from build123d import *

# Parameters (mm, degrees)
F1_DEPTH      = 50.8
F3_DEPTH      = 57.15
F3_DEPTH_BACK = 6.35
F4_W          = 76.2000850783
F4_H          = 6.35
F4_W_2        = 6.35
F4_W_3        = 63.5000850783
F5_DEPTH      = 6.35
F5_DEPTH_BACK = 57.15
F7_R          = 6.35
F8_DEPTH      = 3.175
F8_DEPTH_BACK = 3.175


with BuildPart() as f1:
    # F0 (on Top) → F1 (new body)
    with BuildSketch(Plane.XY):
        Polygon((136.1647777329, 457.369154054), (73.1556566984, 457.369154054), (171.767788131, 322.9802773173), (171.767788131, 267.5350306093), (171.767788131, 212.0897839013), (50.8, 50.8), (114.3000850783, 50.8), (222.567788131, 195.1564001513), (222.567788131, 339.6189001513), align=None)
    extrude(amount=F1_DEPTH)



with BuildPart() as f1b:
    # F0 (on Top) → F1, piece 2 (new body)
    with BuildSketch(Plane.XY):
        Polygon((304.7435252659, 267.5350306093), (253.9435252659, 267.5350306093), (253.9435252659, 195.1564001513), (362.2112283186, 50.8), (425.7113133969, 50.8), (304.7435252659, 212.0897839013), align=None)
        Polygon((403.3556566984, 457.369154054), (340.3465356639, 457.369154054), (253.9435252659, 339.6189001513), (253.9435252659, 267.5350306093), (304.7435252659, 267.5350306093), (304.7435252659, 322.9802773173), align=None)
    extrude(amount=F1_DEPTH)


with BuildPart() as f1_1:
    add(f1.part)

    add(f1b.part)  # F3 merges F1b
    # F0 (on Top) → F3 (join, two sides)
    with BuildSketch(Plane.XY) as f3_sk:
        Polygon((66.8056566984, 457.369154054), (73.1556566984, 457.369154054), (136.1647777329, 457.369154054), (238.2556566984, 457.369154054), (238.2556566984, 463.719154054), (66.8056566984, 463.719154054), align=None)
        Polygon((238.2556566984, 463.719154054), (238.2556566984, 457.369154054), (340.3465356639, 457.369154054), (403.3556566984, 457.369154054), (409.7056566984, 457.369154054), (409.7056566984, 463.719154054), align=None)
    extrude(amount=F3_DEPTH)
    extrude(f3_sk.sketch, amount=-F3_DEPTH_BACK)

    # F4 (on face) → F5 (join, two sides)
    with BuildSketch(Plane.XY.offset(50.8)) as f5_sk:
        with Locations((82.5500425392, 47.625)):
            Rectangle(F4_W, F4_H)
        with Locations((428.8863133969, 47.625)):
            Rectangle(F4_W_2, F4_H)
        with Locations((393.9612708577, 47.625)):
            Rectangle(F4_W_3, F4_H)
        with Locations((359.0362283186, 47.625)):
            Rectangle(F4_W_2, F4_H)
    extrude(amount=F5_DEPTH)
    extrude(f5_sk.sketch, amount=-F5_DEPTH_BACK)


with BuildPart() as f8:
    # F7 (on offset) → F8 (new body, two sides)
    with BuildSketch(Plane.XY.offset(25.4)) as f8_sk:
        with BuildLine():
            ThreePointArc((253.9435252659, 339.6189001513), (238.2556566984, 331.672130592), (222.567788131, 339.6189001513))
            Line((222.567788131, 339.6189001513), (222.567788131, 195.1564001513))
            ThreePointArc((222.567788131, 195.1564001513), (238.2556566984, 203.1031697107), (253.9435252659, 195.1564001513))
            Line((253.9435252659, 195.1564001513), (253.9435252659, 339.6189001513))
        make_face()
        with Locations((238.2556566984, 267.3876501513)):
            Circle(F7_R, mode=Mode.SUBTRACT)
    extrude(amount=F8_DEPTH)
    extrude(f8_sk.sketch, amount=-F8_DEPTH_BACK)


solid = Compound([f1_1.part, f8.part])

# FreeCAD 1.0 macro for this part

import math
import FreeCAD as App
import Part
import Sketcher

V = App.Vector
Q = App.Units.Quantity

doc = App.newDocument("Part")
body = doc.addObject("PartDesign::Body", "Body")

# Sketch on XY plane
sketch1 = doc.addObject("Sketcher::SketchObject", "Sketch")
body.addObject(sketch1)
sketch1.AttachmentSupport = (doc.XY_Plane, [""])
sketch1.MapMode = "FlatFace"
sketch1.addGeometry(Part.LineSegment(V(136, 457, 0), V(73, 457, 0)), False)
sketch1.addGeometry(Part.LineSegment(V(73, 457, 0), V(172, 323, 0)), False)
sketch1.addGeometry(Part.LineSegment(V(172, 323, 0), V(172, 212, 0)), False)
sketch1.addGeometry(Part.LineSegment(V(172, 212, 0), V(51, 51, 0)), False)
sketch1.addGeometry(Part.LineSegment(V(51, 51, 0), V(114, 51, 0)), False)
sketch1.addGeometry(Part.LineSegment(V(114, 51, 0), V(223, 195, 0)), False)
sketch1.addGeometry(Part.LineSegment(V(223, 195, 0), V(223, 340, 0)), False)
sketch1.addGeometry(Part.LineSegment(V(223, 340, 0), V(136, 457, 0)), False)
sketch1.addConstraint(Sketcher.Constraint("Coincident", 0, 2, 1, 1))
sketch1.addConstraint(Sketcher.Constraint("Coincident", 1, 2, 2, 1))
sketch1.addConstraint(Sketcher.Constraint("Coincident", 2, 2, 3, 1))
sketch1.addConstraint(Sketcher.Constraint("Coincident", 3, 2, 4, 1))
sketch1.addConstraint(Sketcher.Constraint("Coincident", 4, 2, 5, 1))
sketch1.addConstraint(Sketcher.Constraint("Coincident", 5, 2, 6, 1))
sketch1.addConstraint(Sketcher.Constraint("Coincident", 6, 2, 7, 1))
sketch1.addConstraint(Sketcher.Constraint("Coincident", 7, 2, 0, 1))
sketch1.addConstraint(Sketcher.Constraint("Horizontal", 0))
sketch1.addConstraint(Sketcher.Constraint("Vertical", 2))
sketch1.addConstraint(Sketcher.Constraint("Horizontal", 4))
sketch1.addConstraint(Sketcher.Constraint("Vertical", 6))
sketch1.addConstraint(Sketcher.Constraint("Parallel", 3, 5))
sketch1.addConstraint(Sketcher.Constraint("Parallel", 1, 7))
sketch1.addConstraint(Sketcher.Constraint("DistanceX", -1, 1, 3, 2, Q("2 in")))
sketch1.addConstraint(Sketcher.Constraint("DistanceY", -1, 1, 3, 2, Q("2 in")))
sketch1.addConstraint(Sketcher.Constraint("DistanceX", 2, 2, 5, 2, Q("2 in")))
sketch1.addConstraint(Sketcher.Constraint("Distance", 7, Q("5.75 in")))
sketch1.addConstraint(Sketcher.Constraint("DistanceY", 6, 1, 6, 2, Q("5.6875 in")))
sketch1.addConstraint(Sketcher.Constraint("Angle", 3, Q("-126.87 deg")))
sketch1.addConstraint(Sketcher.Constraint("Distance", 1, Q("6.5625 in")))
sketch1.addConstraint(Sketcher.Constraint("Distance", 3, Q("7.9375 in")))
sketch1.addConstraint(Sketcher.Constraint("DistanceX", 0, 2, 0, 1, Q("63.009121 mm")))
sketch1.addConstraint(Sketcher.Constraint("DistanceY", -1, 1, 5, 2, Q("195.1564 mm")))
pad1 = doc.addObject("PartDesign::Pad", "Pad")
body.addObject(pad1)
pad1.Profile = sketch1
pad1.Length = Q("2 in")
body2 = doc.addObject("PartDesign::Body", "Body001")

# Sketch on XY plane
sketch2 = doc.addObject("Sketcher::SketchObject", "Sketch001")
body2.addObject(sketch2)
sketch2.AttachmentSupport = (doc.getObject("XY_Plane001"), [""])
sketch2.MapMode = "FlatFace"
sketch2.addGeometry(Part.LineSegment(V(254, 195, 0), V(362, 51, 0)), False)
sketch2.addGeometry(Part.LineSegment(V(362, 51, 0), V(426, 51, 0)), False)
sketch2.addGeometry(Part.LineSegment(V(426, 51, 0), V(305, 212, 0)), False)
sketch2.addGeometry(Part.LineSegment(V(305, 212, 0), V(305, 323, 0)), False)
sketch2.addGeometry(Part.LineSegment(V(305, 323, 0), V(403, 457, 0)), False)
sketch2.addGeometry(Part.LineSegment(V(403, 457, 0), V(340, 457, 0)), False)
sketch2.addGeometry(Part.LineSegment(V(340, 457, 0), V(254, 340, 0)), False)
sketch2.addGeometry(Part.LineSegment(V(254, 340, 0), V(254, 195, 0)), False)
sketch2.addConstraint(Sketcher.Constraint("Coincident", 0, 2, 1, 1))
sketch2.addConstraint(Sketcher.Constraint("Coincident", 1, 2, 2, 1))
sketch2.addConstraint(Sketcher.Constraint("Coincident", 2, 2, 3, 1))
sketch2.addConstraint(Sketcher.Constraint("Coincident", 3, 2, 4, 1))
sketch2.addConstraint(Sketcher.Constraint("Coincident", 4, 2, 5, 1))
sketch2.addConstraint(Sketcher.Constraint("Coincident", 5, 2, 6, 1))
sketch2.addConstraint(Sketcher.Constraint("Coincident", 6, 2, 7, 1))
sketch2.addConstraint(Sketcher.Constraint("Coincident", 7, 2, 0, 1))
sketch2.addConstraint(Sketcher.Constraint("Horizontal", 1))
sketch2.addConstraint(Sketcher.Constraint("Vertical", 3))
sketch2.addConstraint(Sketcher.Constraint("Horizontal", 5))
sketch2.addConstraint(Sketcher.Constraint("Vertical", 7))
sketch2.addConstraint(Sketcher.Constraint("Parallel", 0, 2))
sketch2.addConstraint(Sketcher.Constraint("Parallel", 4, 6))
sketch2.addConstraint(Sketcher.Constraint("DistanceY", -1, 1, 0, 2, Q("2 in")))
sketch2.addConstraint(Sketcher.Constraint("DistanceX", 6, 2, 3, 2, Q("2 in")))
sketch2.addConstraint(Sketcher.Constraint("Distance", 6, Q("5.75 in")))
sketch2.addConstraint(Sketcher.Constraint("DistanceY", 7, 2, 7, 1, Q("5.6875 in")))
sketch2.addConstraint(Sketcher.Constraint("Angle", 0, Q("-53.13 deg")))
sketch2.addConstraint(Sketcher.Constraint("Distance", 2, Q("7.9375 in")))
sketch2.addConstraint(Sketcher.Constraint("Distance", 4, Q("6.5625 in")))
sketch2.addConstraint(Sketcher.Constraint("DistanceX", 5, 2, 5, 1, Q("63.009121 mm")))
sketch2.addConstraint(Sketcher.Constraint("DistanceY", -1, 1, 6, 2, Q("339.6189 mm")))
sketch2.addConstraint(Sketcher.Constraint("DistanceX", -1, 1, 0, 2, Q("362.211228 mm")))
pad2 = doc.addObject("PartDesign::Pad", "Pad001")
body2.addObject(pad2)
pad2.Profile = sketch2
pad2.Length = Q("2 in")
body.AllowCompound = True
doc.recompute()

boolean = doc.addObject("PartDesign::Boolean", "Boolean")
body.addObject(boolean)
boolean.Type = "Fuse"
boolean.addObjects([body2])

# Sketch on XY plane
sketch3 = doc.addObject("Sketcher::SketchObject", "Sketch002")
body.addObject(sketch3)
sketch3.AttachmentSupport = (doc.XY_Plane, [""])
sketch3.MapMode = "FlatFace"
sketch3.addGeometry(Part.LineSegment(V(67, 457, 0), V(410, 457, 0)), False)
sketch3.addGeometry(Part.LineSegment(V(410, 457, 0), V(410, 464, 0)), False)
sketch3.addGeometry(Part.LineSegment(V(410, 464, 0), V(67, 464, 0)), False)
sketch3.addGeometry(Part.LineSegment(V(67, 464, 0), V(67, 457, 0)), False)
sketch3.addConstraint(Sketcher.Constraint("Coincident", 0, 2, 1, 1))
sketch3.addConstraint(Sketcher.Constraint("Coincident", 1, 2, 2, 1))
sketch3.addConstraint(Sketcher.Constraint("Coincident", 2, 2, 3, 1))
sketch3.addConstraint(Sketcher.Constraint("Coincident", 3, 2, 0, 1))
sketch3.addConstraint(Sketcher.Constraint("Horizontal", 0))
sketch3.addConstraint(Sketcher.Constraint("Vertical", 1))
sketch3.addConstraint(Sketcher.Constraint("Horizontal", 2))
sketch3.addConstraint(Sketcher.Constraint("Vertical", 3))
sketch3.addConstraint(Sketcher.Constraint("DistanceX", 0, 1, 0, 2, Q("13.5 in")))
sketch3.addConstraint(Sketcher.Constraint("DistanceY", 1, 1, 1, 2, Q("0.25 in")))
sketch3.addConstraint(Sketcher.Constraint("DistanceX", -1, 1, 0, 2, Q("409.705657 mm")))
sketch3.addConstraint(Sketcher.Constraint("DistanceY", -1, 1, 0, 2, Q("457.369154 mm")))
pad3 = doc.addObject("PartDesign::Pad", "Pad002")
body.addObject(pad3)
pad3.Profile = sketch3
pad3.Type = "TwoLengths"
pad3.Length = Q("2.25 in")
pad3.Length2 = Q("0.25 in")

# Sketch on XY plane
sketch4 = doc.addObject("Sketcher::SketchObject", "Sketch003")
body.addObject(sketch4)
sketch4.AttachmentSupport = (doc.XY_Plane, [""])
sketch4.MapMode = "FlatFace"
sketch4.AttachmentOffset = App.Placement(V(0, 0, 2 * 25.4), App.Rotation())
sketch4.addGeometry(Part.LineSegment(V(44, 51, 0), V(44, 44, 0)), False)
sketch4.addGeometry(Part.LineSegment(V(44, 44, 0), V(121, 44, 0)), False)
sketch4.addGeometry(Part.LineSegment(V(121, 44, 0), V(121, 51, 0)), False)
sketch4.addGeometry(Part.LineSegment(V(121, 51, 0), V(44, 51, 0)), False)
sketch4.addGeometry(Part.LineSegment(V(432, 44, 0), V(432, 51, 0)), False)
sketch4.addGeometry(Part.LineSegment(V(432, 51, 0), V(356, 51, 0)), False)
sketch4.addGeometry(Part.LineSegment(V(356, 51, 0), V(356, 44, 0)), False)
sketch4.addGeometry(Part.LineSegment(V(356, 44, 0), V(432, 44, 0)), False)
sketch4.addConstraint(Sketcher.Constraint("Coincident", 0, 2, 1, 1))
sketch4.addConstraint(Sketcher.Constraint("Coincident", 1, 2, 2, 1))
sketch4.addConstraint(Sketcher.Constraint("Coincident", 2, 2, 3, 1))
sketch4.addConstraint(Sketcher.Constraint("Coincident", 3, 2, 0, 1))
sketch4.addConstraint(Sketcher.Constraint("Coincident", 4, 2, 5, 1))
sketch4.addConstraint(Sketcher.Constraint("Coincident", 5, 2, 6, 1))
sketch4.addConstraint(Sketcher.Constraint("Coincident", 6, 2, 7, 1))
sketch4.addConstraint(Sketcher.Constraint("Coincident", 7, 2, 4, 1))
sketch4.addConstraint(Sketcher.Constraint("Vertical", 0))
sketch4.addConstraint(Sketcher.Constraint("Horizontal", 1))
sketch4.addConstraint(Sketcher.Constraint("Vertical", 2))
sketch4.addConstraint(Sketcher.Constraint("Horizontal", 3))
sketch4.addConstraint(Sketcher.Constraint("Vertical", 4))
sketch4.addConstraint(Sketcher.Constraint("Horizontal", 5))
sketch4.addConstraint(Sketcher.Constraint("Vertical", 6))
sketch4.addConstraint(Sketcher.Constraint("Horizontal", 7))
sketch4.addConstraint(Sketcher.Constraint("Horizontal", 3, 2, 4, 2))
sketch4.addConstraint(Sketcher.Constraint("Horizontal", 1, 2, 6, 2))
sketch4.addConstraint(Sketcher.Constraint("Equal", 3, 5))
sketch4.addConstraint(Sketcher.Constraint("DistanceY", -1, 1, 2, 2, Q("2 in")))
sketch4.addConstraint(Sketcher.Constraint("DistanceY", 0, 2, 0, 1, Q("0.25 in")))
sketch4.addConstraint(Sketcher.Constraint("DistanceX", -1, 1, 0, 2, Q("1.75 in")))
sketch4.addConstraint(Sketcher.Constraint("DistanceX", 1, 1, 1, 2, Q("76.200085 mm")))
sketch4.addConstraint(Sketcher.Constraint("DistanceX", -1, 1, 5, 2, Q("355.861228 mm")))
pad4 = doc.addObject("PartDesign::Pad", "Pad003")
body.addObject(pad4)
pad4.Profile = sketch4
pad4.Type = "TwoLengths"
pad4.Length = Q("0.25 in")
pad4.Length2 = Q("2.25 in")
body3 = doc.addObject("PartDesign::Body", "Body002")

# Sketch on XY plane
sketch5 = doc.addObject("Sketcher::SketchObject", "Sketch004")
body3.addObject(sketch5)
sketch5.AttachmentSupport = (doc.getObject("XY_Plane002"), [""])
sketch5.MapMode = "FlatFace"
sketch5.AttachmentOffset = App.Placement(V(0, 0, 1 * 25.4), App.Rotation())
sketch5.addGeometry(Part.ArcOfCircle(Part.Circle(V(238, 351, 0), V(0, 0, 1), 19), math.radians(-144), math.radians(-36)), False)
sketch5.addGeometry(Part.LineSegment(V(223, 340, 0), V(223, 195, 0)), False)
sketch5.addGeometry(Part.ArcOfCircle(Part.Circle(V(238, 184, 0), V(0, 0, 1), 19), math.radians(36), math.radians(144)), False)
sketch5.addGeometry(Part.LineSegment(V(254, 195, 0), V(254, 340, 0)), False)
sketch5.addGeometry(Part.Circle(V(238, 267, 0), V(0, 0, 1), 6), False)
sketch5.addConstraint(Sketcher.Constraint("Coincident", 0, 1, 1, 1))
sketch5.addConstraint(Sketcher.Constraint("Coincident", 1, 2, 2, 2))
sketch5.addConstraint(Sketcher.Constraint("Coincident", 2, 1, 3, 1))
sketch5.addConstraint(Sketcher.Constraint("Coincident", 3, 2, 0, 2))
sketch5.addConstraint(Sketcher.Constraint("Vertical", 1))
sketch5.addConstraint(Sketcher.Constraint("Vertical", 3))
sketch5.addConstraint(Sketcher.Constraint("Equal", 0, 2))
sketch5.addConstraint(Sketcher.Constraint("Horizontal", 1, 2, 2, 1))
sketch5.addConstraint(Sketcher.Constraint("Horizontal", 0, 1, 3, 2))
sketch5.addConstraint(Sketcher.Constraint("Vertical", 2, 3, 4, 3))
sketch5.addConstraint(Sketcher.Constraint("Diameter", 4, Q("0.5 in")))
sketch5.addConstraint(Sketcher.Constraint("DistanceY", 1, 2, 1, 1, Q("5.6875 in")))
sketch5.addConstraint(Sketcher.Constraint("DistanceY", 4, 3, 0, 1, Q("2.84375 in")))
sketch5.addConstraint(Sketcher.Constraint("Radius", 0, Q("19.458244 mm")))
sketch5.addConstraint(Sketcher.Constraint("DistanceY", -1, 1, 0, 1, Q("339.6189 mm")))
sketch5.addConstraint(Sketcher.Constraint("DistanceX", -1, 1, 0, 1, Q("222.567788 mm")))
sketch5.addConstraint(Sketcher.Constraint("DistanceY", 2, 3, 0, 3, Q("167.485449 mm")))
pad5 = doc.addObject("PartDesign::Pad", "Pad004")
body3.addObject(pad5)
pad5.Profile = sketch5
pad5.Type = "TwoLengths"
pad5.Length = Q("0.125 in")
pad5.Length2 = Q("0.125 in")

doc.recompute()
